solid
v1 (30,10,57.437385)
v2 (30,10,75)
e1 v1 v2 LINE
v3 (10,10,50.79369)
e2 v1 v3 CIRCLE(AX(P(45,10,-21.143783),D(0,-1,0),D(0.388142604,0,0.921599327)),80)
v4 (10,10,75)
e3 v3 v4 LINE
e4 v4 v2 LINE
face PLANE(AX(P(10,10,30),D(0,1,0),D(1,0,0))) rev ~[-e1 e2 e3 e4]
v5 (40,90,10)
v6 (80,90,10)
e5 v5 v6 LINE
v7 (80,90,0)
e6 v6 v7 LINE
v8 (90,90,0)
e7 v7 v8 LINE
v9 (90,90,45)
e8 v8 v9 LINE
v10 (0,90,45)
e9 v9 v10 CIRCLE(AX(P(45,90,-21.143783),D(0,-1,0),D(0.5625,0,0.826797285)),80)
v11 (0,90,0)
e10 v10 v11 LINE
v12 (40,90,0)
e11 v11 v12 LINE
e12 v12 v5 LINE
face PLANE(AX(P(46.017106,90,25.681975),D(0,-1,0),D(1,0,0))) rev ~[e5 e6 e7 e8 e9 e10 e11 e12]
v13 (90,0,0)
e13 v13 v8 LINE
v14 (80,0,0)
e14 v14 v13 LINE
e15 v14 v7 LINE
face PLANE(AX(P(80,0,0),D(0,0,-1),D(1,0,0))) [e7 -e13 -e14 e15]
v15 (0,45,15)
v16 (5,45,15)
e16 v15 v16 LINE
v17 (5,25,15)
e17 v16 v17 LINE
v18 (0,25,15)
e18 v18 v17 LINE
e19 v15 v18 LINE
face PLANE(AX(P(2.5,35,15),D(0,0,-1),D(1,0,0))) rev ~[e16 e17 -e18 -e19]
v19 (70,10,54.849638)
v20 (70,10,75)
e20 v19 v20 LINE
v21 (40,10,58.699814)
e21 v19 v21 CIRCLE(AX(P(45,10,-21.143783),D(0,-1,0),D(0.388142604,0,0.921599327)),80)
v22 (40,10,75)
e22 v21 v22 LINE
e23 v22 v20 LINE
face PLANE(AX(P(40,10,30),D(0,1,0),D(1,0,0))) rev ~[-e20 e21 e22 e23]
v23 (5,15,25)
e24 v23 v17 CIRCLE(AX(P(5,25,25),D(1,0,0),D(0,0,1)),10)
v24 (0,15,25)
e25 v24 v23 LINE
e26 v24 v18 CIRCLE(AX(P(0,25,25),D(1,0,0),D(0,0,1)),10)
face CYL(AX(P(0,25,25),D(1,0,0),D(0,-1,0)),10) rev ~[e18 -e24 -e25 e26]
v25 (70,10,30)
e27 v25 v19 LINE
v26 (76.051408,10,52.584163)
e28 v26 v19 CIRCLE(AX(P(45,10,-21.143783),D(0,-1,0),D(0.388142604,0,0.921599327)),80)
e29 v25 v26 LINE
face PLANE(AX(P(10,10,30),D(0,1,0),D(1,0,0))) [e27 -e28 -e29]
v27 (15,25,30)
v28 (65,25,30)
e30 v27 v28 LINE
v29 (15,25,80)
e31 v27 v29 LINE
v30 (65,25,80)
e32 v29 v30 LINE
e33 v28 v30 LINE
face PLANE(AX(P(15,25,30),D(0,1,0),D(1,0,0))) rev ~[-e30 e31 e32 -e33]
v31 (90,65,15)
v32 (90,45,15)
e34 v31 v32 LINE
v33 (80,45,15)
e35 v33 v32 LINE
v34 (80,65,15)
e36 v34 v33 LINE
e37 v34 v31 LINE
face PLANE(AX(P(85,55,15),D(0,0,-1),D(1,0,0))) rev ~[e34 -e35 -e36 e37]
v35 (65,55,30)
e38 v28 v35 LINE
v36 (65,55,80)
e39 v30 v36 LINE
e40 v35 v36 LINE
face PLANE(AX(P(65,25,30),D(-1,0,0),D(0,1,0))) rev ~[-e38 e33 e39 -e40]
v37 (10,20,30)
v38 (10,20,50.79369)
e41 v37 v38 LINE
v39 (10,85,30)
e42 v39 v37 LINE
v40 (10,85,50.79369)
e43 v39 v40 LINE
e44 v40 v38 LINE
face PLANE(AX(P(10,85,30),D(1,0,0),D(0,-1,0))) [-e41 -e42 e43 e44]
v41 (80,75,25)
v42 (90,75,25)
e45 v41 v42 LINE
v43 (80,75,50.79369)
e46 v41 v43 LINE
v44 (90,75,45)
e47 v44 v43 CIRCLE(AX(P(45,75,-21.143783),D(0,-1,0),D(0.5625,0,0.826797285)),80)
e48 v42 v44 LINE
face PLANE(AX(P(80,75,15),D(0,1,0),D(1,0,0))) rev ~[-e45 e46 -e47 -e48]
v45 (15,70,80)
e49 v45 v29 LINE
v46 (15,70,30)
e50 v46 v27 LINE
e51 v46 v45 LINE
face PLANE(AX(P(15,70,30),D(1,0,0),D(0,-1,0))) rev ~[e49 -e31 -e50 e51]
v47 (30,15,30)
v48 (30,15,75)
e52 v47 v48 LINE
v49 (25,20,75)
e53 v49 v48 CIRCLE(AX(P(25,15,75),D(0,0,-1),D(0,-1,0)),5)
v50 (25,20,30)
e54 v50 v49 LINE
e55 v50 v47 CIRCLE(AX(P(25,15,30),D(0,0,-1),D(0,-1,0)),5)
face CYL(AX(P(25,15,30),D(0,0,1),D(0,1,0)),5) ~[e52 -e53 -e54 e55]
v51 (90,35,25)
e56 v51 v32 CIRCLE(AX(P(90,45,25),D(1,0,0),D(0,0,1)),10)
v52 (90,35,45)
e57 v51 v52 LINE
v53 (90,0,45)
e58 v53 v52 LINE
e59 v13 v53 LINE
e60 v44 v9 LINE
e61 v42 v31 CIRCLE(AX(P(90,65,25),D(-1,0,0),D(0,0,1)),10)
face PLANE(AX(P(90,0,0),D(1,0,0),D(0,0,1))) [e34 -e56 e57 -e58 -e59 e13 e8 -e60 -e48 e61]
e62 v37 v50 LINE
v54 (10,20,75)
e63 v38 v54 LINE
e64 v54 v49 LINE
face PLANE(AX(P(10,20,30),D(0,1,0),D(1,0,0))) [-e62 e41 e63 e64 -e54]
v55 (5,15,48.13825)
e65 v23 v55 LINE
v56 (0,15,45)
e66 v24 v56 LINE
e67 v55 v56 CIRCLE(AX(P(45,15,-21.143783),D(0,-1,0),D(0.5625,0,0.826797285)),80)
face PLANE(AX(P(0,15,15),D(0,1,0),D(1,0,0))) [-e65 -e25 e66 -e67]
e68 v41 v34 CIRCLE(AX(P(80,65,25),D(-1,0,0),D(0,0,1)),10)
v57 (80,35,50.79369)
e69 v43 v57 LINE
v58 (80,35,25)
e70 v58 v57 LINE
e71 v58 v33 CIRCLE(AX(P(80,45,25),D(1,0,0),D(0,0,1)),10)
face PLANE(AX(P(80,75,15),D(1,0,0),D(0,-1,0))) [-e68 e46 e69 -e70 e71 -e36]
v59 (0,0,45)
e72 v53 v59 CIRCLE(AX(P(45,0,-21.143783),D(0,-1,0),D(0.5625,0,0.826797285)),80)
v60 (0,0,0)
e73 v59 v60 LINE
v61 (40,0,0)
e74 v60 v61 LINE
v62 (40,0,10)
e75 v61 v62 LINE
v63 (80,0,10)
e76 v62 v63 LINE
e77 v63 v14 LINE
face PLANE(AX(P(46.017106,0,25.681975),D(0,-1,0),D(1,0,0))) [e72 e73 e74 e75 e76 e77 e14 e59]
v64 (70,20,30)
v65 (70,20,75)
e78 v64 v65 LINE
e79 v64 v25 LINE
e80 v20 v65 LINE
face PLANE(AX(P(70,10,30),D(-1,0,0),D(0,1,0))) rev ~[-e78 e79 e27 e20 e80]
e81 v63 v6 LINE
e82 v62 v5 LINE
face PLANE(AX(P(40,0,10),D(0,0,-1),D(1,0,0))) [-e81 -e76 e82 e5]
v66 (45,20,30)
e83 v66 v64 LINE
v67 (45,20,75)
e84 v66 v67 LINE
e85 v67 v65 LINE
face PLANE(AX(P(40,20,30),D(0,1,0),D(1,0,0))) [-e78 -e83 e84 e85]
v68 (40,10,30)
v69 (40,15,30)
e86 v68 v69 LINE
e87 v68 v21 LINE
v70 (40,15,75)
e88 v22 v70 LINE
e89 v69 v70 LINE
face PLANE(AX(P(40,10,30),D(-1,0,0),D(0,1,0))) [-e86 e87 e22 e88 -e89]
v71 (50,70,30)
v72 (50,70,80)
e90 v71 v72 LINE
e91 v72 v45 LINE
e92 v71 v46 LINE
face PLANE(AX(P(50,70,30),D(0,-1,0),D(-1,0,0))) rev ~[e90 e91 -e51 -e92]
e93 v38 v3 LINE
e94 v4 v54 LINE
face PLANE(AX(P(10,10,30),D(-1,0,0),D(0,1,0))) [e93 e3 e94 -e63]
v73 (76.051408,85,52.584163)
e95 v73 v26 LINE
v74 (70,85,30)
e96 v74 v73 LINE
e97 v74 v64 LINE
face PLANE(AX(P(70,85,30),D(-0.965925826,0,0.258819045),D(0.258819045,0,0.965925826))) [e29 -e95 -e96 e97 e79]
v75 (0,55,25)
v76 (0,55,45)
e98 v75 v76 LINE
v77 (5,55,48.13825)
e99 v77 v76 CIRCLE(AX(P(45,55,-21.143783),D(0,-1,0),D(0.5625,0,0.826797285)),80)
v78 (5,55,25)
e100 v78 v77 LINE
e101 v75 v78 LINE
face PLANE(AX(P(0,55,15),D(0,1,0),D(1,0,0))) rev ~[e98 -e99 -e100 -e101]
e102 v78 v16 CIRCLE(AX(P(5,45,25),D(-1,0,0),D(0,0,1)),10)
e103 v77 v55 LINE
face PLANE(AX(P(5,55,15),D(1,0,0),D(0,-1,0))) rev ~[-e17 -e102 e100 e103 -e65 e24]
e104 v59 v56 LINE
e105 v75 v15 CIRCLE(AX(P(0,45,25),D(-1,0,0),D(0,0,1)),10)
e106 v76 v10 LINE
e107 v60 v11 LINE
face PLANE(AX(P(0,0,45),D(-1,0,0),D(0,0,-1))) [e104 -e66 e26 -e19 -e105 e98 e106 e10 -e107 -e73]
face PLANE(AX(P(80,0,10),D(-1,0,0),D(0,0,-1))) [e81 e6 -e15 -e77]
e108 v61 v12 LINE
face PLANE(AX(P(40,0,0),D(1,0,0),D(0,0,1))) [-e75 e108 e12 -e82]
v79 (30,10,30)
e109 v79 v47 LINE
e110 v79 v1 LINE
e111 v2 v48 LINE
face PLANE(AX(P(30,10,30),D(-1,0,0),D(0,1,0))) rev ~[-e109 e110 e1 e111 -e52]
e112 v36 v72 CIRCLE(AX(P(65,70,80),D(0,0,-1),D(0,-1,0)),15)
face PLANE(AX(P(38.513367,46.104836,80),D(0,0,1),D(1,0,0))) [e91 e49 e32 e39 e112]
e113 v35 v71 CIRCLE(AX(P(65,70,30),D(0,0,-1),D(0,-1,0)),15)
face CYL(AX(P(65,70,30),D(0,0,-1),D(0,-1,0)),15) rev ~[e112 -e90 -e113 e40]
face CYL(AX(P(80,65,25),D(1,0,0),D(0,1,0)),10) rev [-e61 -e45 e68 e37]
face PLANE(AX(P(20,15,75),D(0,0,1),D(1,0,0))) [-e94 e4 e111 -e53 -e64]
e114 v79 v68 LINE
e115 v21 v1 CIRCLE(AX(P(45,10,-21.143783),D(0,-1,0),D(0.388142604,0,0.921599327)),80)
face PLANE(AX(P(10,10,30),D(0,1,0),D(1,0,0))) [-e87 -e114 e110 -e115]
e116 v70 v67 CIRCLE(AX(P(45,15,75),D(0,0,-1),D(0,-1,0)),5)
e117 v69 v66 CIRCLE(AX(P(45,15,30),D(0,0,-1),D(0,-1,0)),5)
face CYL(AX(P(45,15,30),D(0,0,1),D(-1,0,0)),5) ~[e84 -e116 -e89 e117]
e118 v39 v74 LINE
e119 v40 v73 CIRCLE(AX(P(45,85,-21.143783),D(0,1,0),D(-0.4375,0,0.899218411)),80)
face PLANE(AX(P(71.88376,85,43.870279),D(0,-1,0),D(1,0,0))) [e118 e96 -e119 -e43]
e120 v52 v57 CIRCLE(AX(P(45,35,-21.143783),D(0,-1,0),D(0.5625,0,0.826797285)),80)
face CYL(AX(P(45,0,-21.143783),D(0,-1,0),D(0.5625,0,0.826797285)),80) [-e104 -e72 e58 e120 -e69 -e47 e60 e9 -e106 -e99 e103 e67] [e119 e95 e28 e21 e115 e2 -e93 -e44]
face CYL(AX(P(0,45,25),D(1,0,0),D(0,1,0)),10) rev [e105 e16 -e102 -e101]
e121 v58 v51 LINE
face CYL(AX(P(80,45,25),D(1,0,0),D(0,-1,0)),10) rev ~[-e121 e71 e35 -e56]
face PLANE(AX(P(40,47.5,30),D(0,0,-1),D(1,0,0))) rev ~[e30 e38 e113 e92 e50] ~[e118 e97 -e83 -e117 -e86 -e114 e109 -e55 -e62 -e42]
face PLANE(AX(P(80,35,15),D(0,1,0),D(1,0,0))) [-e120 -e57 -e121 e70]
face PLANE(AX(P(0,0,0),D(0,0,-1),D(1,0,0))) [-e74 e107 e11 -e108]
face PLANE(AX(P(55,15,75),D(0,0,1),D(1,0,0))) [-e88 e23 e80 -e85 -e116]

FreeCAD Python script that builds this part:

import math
import FreeCAD as App
import Part
import Sketcher
Q = App.Units.Quantity


def edges_at(feature, points):
    """Names of the edges that pass closest to the given points."""
    edges = feature.Shape.Edges
    near = lambda p: min(range(len(edges)), key=lambda i: edges[i].distToShape(Part.Vertex(*p))[0])
    return sorted({f"Edge{near(p) + 1}" for p in points})

doc = App.newDocument("Part")
body = doc.addObject("PartDesign::Body", "Body")

# Sketch on XZ plane
sketch1 = body.newObject("Sketcher::SketchObject", "Sketch")
sketch1.AttachmentSupport = (doc.getObject("XZ_Plane"), [""])
sketch1.MapMode = "FlatFace"
sketch1.addGeometry([
    Part.LineSegment(App.Vector(0, 45, 0), App.Vector(0, 0, 0)),  # 0
    Part.LineSegment(App.Vector(0, 0, 0), App.Vector(40, 0, 0)),  # 1
    Part.LineSegment(App.Vector(40, 0, 0), App.Vector(40, 10, 0)),  # 2
    Part.LineSegment(App.Vector(40, 10, 0), App.Vector(80, 10, 0)),  # 3
    Part.LineSegment(App.Vector(80, 10, 0), App.Vector(80, 0, 0)),  # 4
    Part.LineSegment(App.Vector(80, 0, 0), App.Vector(90, 0, 0)),  # 5
    Part.LineSegment(App.Vector(90, 0, 0), App.Vector(90, 45, 0)),  # 6
    Part.ArcOfCircle(Part.Circle(App.Vector(45, -21, 0), App.Vector(0, 0, 1), 80), math.radians(56), math.radians(124)),  # 7
], False)
sketch1.addConstraint([
    Sketcher.Constraint("Coincident", 0, 2, 1, 1),
    Sketcher.Constraint("Coincident", 1, 2, 2, 1),
    Sketcher.Constraint("Coincident", 2, 2, 3, 1),
    Sketcher.Constraint("Coincident", 3, 2, 4, 1),
    Sketcher.Constraint("Coincident", 4, 2, 5, 1),
    Sketcher.Constraint("Coincident", 5, 2, 6, 1),
    Sketcher.Constraint("Coincident", 6, 2, 7, 1),
    Sketcher.Constraint("Coincident", 7, 2, 0, 1),
    Sketcher.Constraint("Vertical", 0),
    Sketcher.Constraint("Horizontal", 1),
    Sketcher.Constraint("Vertical", 2),
    Sketcher.Constraint("Horizontal", 3),
    Sketcher.Constraint("Vertical", 4),
    Sketcher.Constraint("Horizontal", 5),
    Sketcher.Constraint("Vertical", 6),
    Sketcher.Constraint("Coincident", 0, 2, -1, 1),
    Sketcher.Constraint("PointOnObject", 4, 2, -1),
    Sketcher.Constraint("Horizontal", 6, 2, 7, 2),
    Sketcher.Constraint("Equal", 1, 3),
    Sketcher.Constraint("Equal", 5, 2),
    Sketcher.Constraint("Radius", 7, Q("80 mm")),
    Sketcher.Constraint("DistanceX", 1, 1, 1, 2, Q("40 mm")),
    Sketcher.Constraint("DistanceX", 5, 1, 5, 2, Q("10 mm")),
    Sketcher.Constraint("DistanceY", 0, 2, 0, 1, Q("45 mm")),
])
pad1 = body.newObject("PartDesign::Pad", "Pad")
pad1.Profile = sketch1
pad1.Length = 90
pad1.Reversed = True

# Sketch on XY plane
sketch2 = body.newObject("Sketcher::SketchObject", "Sketch001")
sketch2.AttachmentSupport = (doc.getObject("XY_Plane"), [""])
sketch2.MapMode = "FlatFace"
sketch2.AttachmentOffset = App.Placement(App.Vector(0, 0, 30), App.Rotation())
sketch2.addGeometry([
    Part.LineSegment(App.Vector(10, 10, 0), App.Vector(10, 85, 0)),
    Part.LineSegment(App.Vector(10, 85, 0), App.Vector(70, 85, 0)),
    Part.LineSegment(App.Vector(70, 85, 0), App.Vector(70, 10, 0)),
    Part.LineSegment(App.Vector(70, 10, 0), App.Vector(10, 10, 0)),
], False)
sketch2.addConstraint([
    Sketcher.Constraint("Coincident", 0, 2, 1, 1),
    Sketcher.Constraint("Coincident", 1, 2, 2, 1),
    Sketcher.Constraint("Coincident", 2, 2, 3, 1),
    Sketcher.Constraint("Coincident", 3, 2, 0, 1),
    Sketcher.Constraint("Vertical", 0),
    Sketcher.Constraint("Horizontal", 1),
    Sketcher.Constraint("Vertical", 2),
    Sketcher.Constraint("Horizontal", 3),
    Sketcher.Constraint("DistanceX", 1, 1, 1, 2, Q("60 mm")),
    Sketcher.Constraint("DistanceY", 0, 1, 0, 2, Q("75 mm")),
    Sketcher.Constraint("DistanceX", -1, 1, 0, 2, Q("10 mm")),
    Sketcher.Constraint("DistanceY", -1, 1, 0, 2, Q("85 mm")),
])
pocket1 = body.newObject("PartDesign::Pocket", "Pocket")
pocket1.Profile = sketch2
pocket1.Type = "ThroughAll"
pocket1.Reversed = True

# Sketch on XZ plane
sketch3 = body.newObject("Sketcher::SketchObject", "Sketch002")
sketch3.AttachmentSupport = (doc.getObject("XZ_Plane"), [""])
sketch3.MapMode = "FlatFace"
sketch3.AttachmentOffset = App.Placement(App.Vector(0, 0, -85), App.Rotation())
sketch3.addGeometry([
    Part.LineSegment(App.Vector(70, 55, 0), App.Vector(70, 30, 0)),
    Part.LineSegment(App.Vector(70, 30, 0), App.Vector(77, 55, 0)),
    Part.LineSegment(App.Vector(77, 55, 0), App.Vector(70, 55, 0)),
], False)
sketch3.addConstraint([
    Sketcher.Constraint("Coincident", 0, 2, 1, 1),
    Sketcher.Constraint("Coincident", 1, 2, 2, 1),
    Sketcher.Constraint("Coincident", 2, 2, 0, 1),
    Sketcher.Constraint("Vertical", 0),
    Sketcher.Constraint("Horizontal", 2),
    Sketcher.Constraint("Angle", 1, Q("75 deg")),
    Sketcher.Constraint("DistanceX", -1, 1, 0, 2, Q("70 mm")),
    Sketcher.Constraint("DistanceY", -1, 1, 0, 2, Q("30 mm")),
    Sketcher.Constraint("DistanceX", 2, 2, 2, 1, Q("6.65844 mm")),
])
pocket2 = body.newObject("PartDesign::Pocket", "Pocket001")
pocket2.Profile = sketch3
pocket2.Length = 75
pocket2.Reversed = True

# Sketch on XY plane
sketch4 = body.newObject("Sketcher::SketchObject", "Sketch003")
sketch4.AttachmentSupport = (doc.getObject("XY_Plane"), [""])
sketch4.MapMode = "FlatFace"
sketch4.AttachmentOffset = App.Placement(App.Vector(0, 0, 30), App.Rotation())
sketch4.addGeometry([
    Part.LineSegment(App.Vector(10, 20, 0), App.Vector(10, 10, 0)),  # 0
    Part.LineSegment(App.Vector(10, 10, 0), App.Vector(30, 10, 0)),  # 1
    Part.LineSegment(App.Vector(30, 10, 0), App.Vector(30, 20, 0)),  # 2
    Part.LineSegment(App.Vector(30, 20, 0), App.Vector(10, 20, 0)),  # 3
    Part.LineSegment(App.Vector(40, 20, 0), App.Vector(40, 10, 0)),  # 4
    Part.LineSegment(App.Vector(40, 10, 0), App.Vector(70, 10, 0)),  # 5
    Part.LineSegment(App.Vector(70, 10, 0), App.Vector(70, 20, 0)),  # 6
    Part.LineSegment(App.Vector(70, 20, 0), App.Vector(40, 20, 0)),  # 7
], False)
sketch4.addConstraint([
    Sketcher.Constraint("Coincident", 0, 2, 1, 1),
    Sketcher.Constraint("Coincident", 1, 2, 2, 1),
    Sketcher.Constraint("Coincident", 2, 2, 3, 1),
    Sketcher.Constraint("Coincident", 3, 2, 0, 1),
    Sketcher.Constraint("Coincident", 4, 2, 5, 1),
    Sketcher.Constraint("Coincident", 5, 2, 6, 1),
    Sketcher.Constraint("Coincident", 6, 2, 7, 1),
    Sketcher.Constraint("Coincident", 7, 2, 4, 1),
    Sketcher.Constraint("Vertical", 0),
    Sketcher.Constraint("Horizontal", 1),
    Sketcher.Constraint("Vertical", 2),
    Sketcher.Constraint("Horizontal", 3),
    Sketcher.Constraint("Vertical", 4),
    Sketcher.Constraint("Horizontal", 5),
    Sketcher.Constraint("Vertical", 6),
    Sketcher.Constraint("Horizontal", 7),
    Sketcher.Constraint("Horizontal", 1, 2, 4, 2),
    Sketcher.Constraint("Horizontal", 3, 2, 6, 2),
    Sketcher.Constraint("DistanceX", 1, 1, 1, 2, Q("20 mm")),
    Sketcher.Constraint("DistanceX", 5, 1, 5, 2, Q("30 mm")),
    Sketcher.Constraint("DistanceY", 0, 2, 0, 1, Q("10 mm")),
    Sketcher.Constraint("DistanceX", -1, 1, 0, 2, Q("10 mm")),
    Sketcher.Constraint("DistanceY", -1, 1, 0, 2, Q("10 mm")),
    Sketcher.Constraint("DistanceX", -1, 1, 4, 2, Q("40 mm")),
])
pad2 = body.newObject("PartDesign::Pad", "Pad001")
pad2.Profile = sketch4
pad2.Length = 45
doc.recompute()

fillet = body.newObject("PartDesign::Fillet", "Fillet")
fillet.Base = (pad2, edges_at(pad2, [(40, 20, 52.5), (30, 20, 52.5)]))
fillet.Radius = 5

# Sketch on XY plane
sketch5 = body.newObject("Sketcher::SketchObject", "Sketch004")
sketch5.AttachmentSupport = (doc.getObject("XY_Plane"), [""])
sketch5.MapMode = "FlatFace"
sketch5.AttachmentOffset = App.Placement(App.Vector(0, 0, 30), App.Rotation())
sketch5.addGeometry([
    Part.LineSegment(App.Vector(50, 70, 0), App.Vector(15, 70, 0)),  # 0
    Part.LineSegment(App.Vector(15, 70, 0), App.Vector(15, 25, 0)),  # 1
    Part.LineSegment(App.Vector(15, 25, 0), App.Vector(65, 25, 0)),  # 2
    Part.LineSegment(App.Vector(65, 25, 0), App.Vector(65, 55, 0)),  # 3
    Part.ArcOfCircle(Part.Circle(App.Vector(65, 70, 0), App.Vector(0, 0, 1), 15), math.radians(180), math.radians(270)),  # 4
], False)
sketch5.addConstraint([
    Sketcher.Constraint("Coincident", 0, 2, 1, 1),
    Sketcher.Constraint("Coincident", 1, 2, 2, 1),
    Sketcher.Constraint("Coincident", 2, 2, 3, 1),
    Sketcher.Constraint("Coincident", 3, 2, 4, 2),
    Sketcher.Constraint("Coincident", 4, 1, 0, 1),
    Sketcher.Constraint("Horizontal", 0),
    Sketcher.Constraint("Vertical", 1),
    Sketcher.Constraint("Horizontal", 2),
    Sketcher.Constraint("Vertical", 3),
    Sketcher.Constraint("Horizontal", 4, 3, 0, 2),
    Sketcher.Constraint("Vertical", 4, 3, 2, 2),
    Sketcher.Constraint("Radius", 4, Q("15 mm")),
    Sketcher.Constraint("DistanceX", 0, 2, 0, 1, Q("35 mm")),
    Sketcher.Constraint("DistanceY", 1, 2, 1, 1, Q("45 mm")),
    Sketcher.Constraint("DistanceX", -1, 1, 4, 3, Q("65 mm")),
    Sketcher.Constraint("DistanceY", -1, 1, 4, 3, Q("70 mm")),
])
pad3 = body.newObject("PartDesign::Pad", "Pad002")
pad3.Profile = sketch5
pad3.Length = 50

# Sketch on XY plane
sketch6 = body.newObject("Sketcher::SketchObject", "Sketch005")
sketch6.AttachmentSupport = (doc.getObject("XY_Plane"), [""])
sketch6.MapMode = "FlatFace"
sketch6.AttachmentOffset = App.Placement(App.Vector(0, 0, 15), App.Rotation())
sketch6.addGeometry([
    Part.LineSegment(App.Vector(0, 15, 0), App.Vector(0, 55, 0)),  # 0
    Part.LineSegment(App.Vector(0, 55, 0), App.Vector(5, 55, 0)),  # 1
    Part.LineSegment(App.Vector(5, 55, 0), App.Vector(5, 15, 0)),  # 2
    Part.LineSegment(App.Vector(5, 15, 0), App.Vector(0, 15, 0)),  # 3
    Part.LineSegment(App.Vector(80, 35, 0), App.Vector(80, 75, 0)),  # 4
    Part.LineSegment(App.Vector(80, 75, 0), App.Vector(90, 75, 0)),  # 5
    Part.LineSegment(App.Vector(90, 75, 0), App.Vector(90, 35, 0)),  # 6
    Part.LineSegment(App.Vector(90, 35, 0), App.Vector(80, 35, 0)),  # 7
], False)
sketch6.addConstraint([
    Sketcher.Constraint("Coincident", 0, 2, 1, 1),
    Sketcher.Constraint("Coincident", 1, 2, 2, 1),
    Sketcher.Constraint("Coincident", 2, 2, 3, 1),
    Sketcher.Constraint("Coincident", 3, 2, 0, 1),
    Sketcher.Constraint("Coincident", 4, 2, 5, 1),
    Sketcher.Constraint("Coincident", 5, 2, 6, 1),
    Sketcher.Constraint("Coincident", 6, 2, 7, 1),
    Sketcher.Constraint("Coincident", 7, 2, 4, 1),
    Sketcher.Constraint("Vertical", 0),
    Sketcher.Constraint("Horizontal", 1),
    Sketcher.Constraint("Vertical", 2),
    Sketcher.Constraint("Horizontal", 3),
    Sketcher.Constraint("Vertical", 4),
    Sketcher.Constraint("Horizontal", 5),
    Sketcher.Constraint("Vertical", 6),
    Sketcher.Constraint("Horizontal", 7),
    Sketcher.Constraint("PointOnObject", 0, 2, -2),
    Sketcher.Constraint("Equal", 2, 4),
    Sketcher.Constraint("DistanceX", 1, 1, 1, 2, Q("5 mm")),
    Sketcher.Constraint("DistanceX", 5, 1, 5, 2, Q("10 mm")),
    Sketcher.Constraint("DistanceY", 0, 1, 0, 2, Q("40 mm")),
    Sketcher.Constraint("DistanceY", -1, 1, 0, 2, Q("55 mm")),
    Sketcher.Constraint("DistanceX", -1, 1, 4, 2, Q("80 mm")),
    Sketcher.Constraint("DistanceY", -1, 1, 4, 2, Q("75 mm")),
])
pocket3 = body.newObject("PartDesign::Pocket", "Pocket002")
pocket3.Profile = sketch6
pocket3.Type = "ThroughAll"
pocket3.Reversed = True
doc.recompute()

fillet2 = body.newObject("PartDesign::Fillet", "Fillet001")
fillet2.Base = (pocket3, edges_at(pocket3, [
    (2.5, 55, 15),
    (2.5, 15, 15),
    (85, 35, 15),
    (85, 75, 15),
]))
fillet2.Radius = 10

doc.recompute()
